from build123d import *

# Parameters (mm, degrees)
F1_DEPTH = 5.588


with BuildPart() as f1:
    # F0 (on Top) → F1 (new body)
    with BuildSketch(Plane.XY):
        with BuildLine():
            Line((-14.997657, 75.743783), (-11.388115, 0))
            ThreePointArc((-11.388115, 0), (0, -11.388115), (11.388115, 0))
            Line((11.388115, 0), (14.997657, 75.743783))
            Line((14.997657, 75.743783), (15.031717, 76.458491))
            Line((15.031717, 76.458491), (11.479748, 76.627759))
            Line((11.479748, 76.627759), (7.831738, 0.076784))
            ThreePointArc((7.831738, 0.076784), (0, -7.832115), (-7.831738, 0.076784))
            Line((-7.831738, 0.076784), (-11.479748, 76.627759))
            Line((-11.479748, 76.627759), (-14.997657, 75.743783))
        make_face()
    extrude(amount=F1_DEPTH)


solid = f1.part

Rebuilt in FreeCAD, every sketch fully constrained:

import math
import FreeCAD as App
import Part
import Sketcher

V = App.Vector
Q = App.Units.Quantity

doc = App.newDocument("Part")
body = doc.addObject("PartDesign::Body", "Body")

# Sketch on XY plane
sketch1 = body.newObject("Sketcher::SketchObject", "Sketch")
sketch1.AttachmentSupport = (doc.getObject("XY_Plane"), [""])
sketch1.MapMode = "FlatFace"
sketch1.addGeometry([
    Part.LineSegment(V(-15, 75.7, 0), V(-11.4, 0, 0)),  # 0
    Part.ArcOfCircle(Part.Circle(V(0, 0, 0), V(0, 0, 1), 11.4), math.radians(180), math.radians(360)),  # 1
    Part.LineSegment(V(11.4, 0, 0), V(15, 75.7, 0)),  # 2
    Part.LineSegment(V(15, 75.7, 0), V(15, 76.5, 0)),  # 3
    Part.LineSegment(V(15, 76.5, 0), V(11.5, 76.6, 0)),  # 4
    Part.LineSegment(V(11.5, 76.6, 0), V(7.8, 0.1, 0)),  # 5
    Part.ArcOfCircle(Part.Circle(V(0, 0, 0), V(0, 0, 1), 7.8), math.radians(179), math.radians(361)),  # 6
    Part.LineSegment(V(-7.8, 0.1, 0), V(-11.5, 76.6, 0)),  # 7
    Part.LineSegment(V(-11.5, 76.6, 0), V(-15, 75.7, 0)),  # 8
], False)
sketch1.addConstraint([
    Sketcher.Constraint("Coincident", 0, 2, 1, 1),
    Sketcher.Constraint("Coincident", 1, 2, 2, 1),
    Sketcher.Constraint("Coincident", 2, 2, 3, 1),
    Sketcher.Constraint("Coincident", 3, 2, 4, 1),
    Sketcher.Constraint("Coincident", 4, 2, 5, 1),
    Sketcher.Constraint("Coincident", 5, 2, 6, 2),
    Sketcher.Constraint("Coincident", 6, 1, 7, 1),
    Sketcher.Constraint("Coincident", 7, 2, 8, 1),
    Sketcher.Constraint("Coincident", 8, 2, 0, 1),
    Sketcher.Constraint("Coincident", 1, 3, -1, 1),
    Sketcher.Constraint("Coincident", 6, 3, -1, 1),
    Sketcher.Constraint("Symmetric", 4, 2, 7, 2, -2),
    Sketcher.Constraint("Symmetric", 2, 2, 8, 2, -2),
    Sketcher.Constraint("PointOnObject", 0, 2, -1),
    Sketcher.Constraint("PointOnObject", 1, 2, -1),
    Sketcher.Constraint("Parallel", 2, 3),
    Sketcher.Constraint("Perpendicular", 3, 4),
    Sketcher.Constraint("Perpendicular", 4, 5),
    Sketcher.Constraint("Parallel", 0, 7),
    Sketcher.Constraint("Distance", 4, Q("0.14 in")),
    Sketcher.Constraint("DistanceX", -1, 1, 3, 2, Q("0.5917999 in")),
    Sketcher.Constraint("Radius", 1, Q("11.388115 mm")),
    Sketcher.Constraint("Radius", 6, Q("7.832114 mm")),
    Sketcher.Constraint("DistanceY", 5, 2, 2, 2, Q("75.666999 mm")),
    Sketcher.Constraint("Distance", 3, Q("0.715519 mm")),
])
pad1 = body.newObject("PartDesign::Pad", "Pad")
pad1.Profile = sketch1
pad1.Length = Q("0.22 in")

doc.recompute()
